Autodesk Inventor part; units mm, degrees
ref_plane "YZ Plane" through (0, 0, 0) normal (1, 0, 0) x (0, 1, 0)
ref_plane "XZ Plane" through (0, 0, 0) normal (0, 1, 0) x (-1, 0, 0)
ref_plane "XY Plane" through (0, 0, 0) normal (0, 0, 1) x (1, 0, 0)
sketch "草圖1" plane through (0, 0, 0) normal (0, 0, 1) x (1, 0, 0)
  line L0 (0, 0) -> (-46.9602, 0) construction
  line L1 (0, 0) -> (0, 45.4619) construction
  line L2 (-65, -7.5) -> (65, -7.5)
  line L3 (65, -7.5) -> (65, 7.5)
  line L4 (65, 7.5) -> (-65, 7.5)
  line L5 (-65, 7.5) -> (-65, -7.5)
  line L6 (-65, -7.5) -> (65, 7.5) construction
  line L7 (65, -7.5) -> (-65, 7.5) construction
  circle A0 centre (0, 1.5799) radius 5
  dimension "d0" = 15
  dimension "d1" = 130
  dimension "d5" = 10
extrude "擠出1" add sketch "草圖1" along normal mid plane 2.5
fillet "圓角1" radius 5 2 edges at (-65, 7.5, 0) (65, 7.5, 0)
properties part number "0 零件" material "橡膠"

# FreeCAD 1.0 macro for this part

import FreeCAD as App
import Part
import Sketcher

V = App.Vector


def edges_at(feature, points):
    """Names of the edges that pass closest to the given points."""
    edges = feature.Shape.Edges
    near = lambda p: min(range(len(edges)), key=lambda i: edges[i].distToShape(Part.Vertex(*p))[0])
    return sorted({f"Edge{near(p) + 1}" for p in points})


def add_polygon(sketch, points):
    """Adds a closed chain of lines whose ends are joined by coincident constraints."""
    first, n = sketch.GeometryCount, len(points)
    for a, b in zip(points, points[1:] + points[:1]):
        sketch.addGeometry(Part.LineSegment(App.Vector(*a, 0), App.Vector(*b, 0)), False)
    for i in range(n):
        sketch.addConstraint(Sketcher.Constraint("Coincident", first + i, 2, first + (i + 1) % n, 1))

doc = App.newDocument("Part")
params = doc.addObject("Spreadsheet::Sheet", "Params")
for row, (alias, value) in enumerate([
    ("sketch1_diameter", "10 mm"),
    ("sketch1_width", "130 mm"),
    ("sketch1_height", "15 mm"),
    ("pad1_length", "2.5 mm"),
    ("fillet_radius", "5 mm"),
], start=1):
    params.set(f"A{row}", alias)
    params.set(f"B{row}", "=" + value)
    params.setAlias(f"B{row}", alias)

body = doc.addObject("PartDesign::Body", "Body")

# Sketch on XY plane
sketch1 = doc.addObject("Sketcher::SketchObject", "Sketch")
body.addObject(sketch1)
sketch1.AttachmentSupport = (doc.XY_Plane, [""])
sketch1.MapMode = "FlatFace"
add_polygon(sketch1, [(-65, 8), (-65, -8), (65, -8), (65, 8)])  # lines 0-3
sketch1.addGeometry(Part.Circle(V(0, 2, 0), V(0, 0, 1), 5), False)  # 4
sketch1.addConstraint(Sketcher.Constraint("Vertical", 0))
sketch1.addConstraint(Sketcher.Constraint("Horizontal", 1))
sketch1.addConstraint(Sketcher.Constraint("Vertical", 2))
sketch1.addConstraint(Sketcher.Constraint("Horizontal", 3))
sketch1.addConstraint(Sketcher.Constraint("Symmetric", 0, 2, 2, 2, -1, 1))
sketch1.addConstraint(Sketcher.Constraint("PointOnObject", 4, 3, -2))
sketch1.addConstraint(Sketcher.Constraint("Diameter", 4, 10.0))
sketch1.addConstraint(Sketcher.Constraint("DistanceX", 1, 1, 1, 2, 130.0))
sketch1.addConstraint(Sketcher.Constraint("DistanceY", 0, 2, 0, 1, 15.0))
sketch1.addConstraint(Sketcher.Constraint("DistanceY", -1, 1, 4, 3, 1.58))
sketch1.setExpression("Constraints[10]", "Params.sketch1_diameter")
sketch1.setExpression("Constraints[11]", "Params.sketch1_width")
sketch1.setExpression("Constraints[12]", "Params.sketch1_height")
pad1 = doc.addObject("PartDesign::Pad", "Pad")
body.addObject(pad1)
pad1.Profile = sketch1
pad1.setExpression("Length", "Params.pad1_length")
pad1.Midplane = True
doc.recompute()

fillet = doc.addObject("PartDesign::Fillet", "Fillet")
body.addObject(fillet)
fillet.Base = (pad1, edges_at(pad1, [(-65, 7.5, 0), (65, 7.5, 0)]))
fillet.setExpression("Radius", "Params.fillet_radius")

doc.recompute()
